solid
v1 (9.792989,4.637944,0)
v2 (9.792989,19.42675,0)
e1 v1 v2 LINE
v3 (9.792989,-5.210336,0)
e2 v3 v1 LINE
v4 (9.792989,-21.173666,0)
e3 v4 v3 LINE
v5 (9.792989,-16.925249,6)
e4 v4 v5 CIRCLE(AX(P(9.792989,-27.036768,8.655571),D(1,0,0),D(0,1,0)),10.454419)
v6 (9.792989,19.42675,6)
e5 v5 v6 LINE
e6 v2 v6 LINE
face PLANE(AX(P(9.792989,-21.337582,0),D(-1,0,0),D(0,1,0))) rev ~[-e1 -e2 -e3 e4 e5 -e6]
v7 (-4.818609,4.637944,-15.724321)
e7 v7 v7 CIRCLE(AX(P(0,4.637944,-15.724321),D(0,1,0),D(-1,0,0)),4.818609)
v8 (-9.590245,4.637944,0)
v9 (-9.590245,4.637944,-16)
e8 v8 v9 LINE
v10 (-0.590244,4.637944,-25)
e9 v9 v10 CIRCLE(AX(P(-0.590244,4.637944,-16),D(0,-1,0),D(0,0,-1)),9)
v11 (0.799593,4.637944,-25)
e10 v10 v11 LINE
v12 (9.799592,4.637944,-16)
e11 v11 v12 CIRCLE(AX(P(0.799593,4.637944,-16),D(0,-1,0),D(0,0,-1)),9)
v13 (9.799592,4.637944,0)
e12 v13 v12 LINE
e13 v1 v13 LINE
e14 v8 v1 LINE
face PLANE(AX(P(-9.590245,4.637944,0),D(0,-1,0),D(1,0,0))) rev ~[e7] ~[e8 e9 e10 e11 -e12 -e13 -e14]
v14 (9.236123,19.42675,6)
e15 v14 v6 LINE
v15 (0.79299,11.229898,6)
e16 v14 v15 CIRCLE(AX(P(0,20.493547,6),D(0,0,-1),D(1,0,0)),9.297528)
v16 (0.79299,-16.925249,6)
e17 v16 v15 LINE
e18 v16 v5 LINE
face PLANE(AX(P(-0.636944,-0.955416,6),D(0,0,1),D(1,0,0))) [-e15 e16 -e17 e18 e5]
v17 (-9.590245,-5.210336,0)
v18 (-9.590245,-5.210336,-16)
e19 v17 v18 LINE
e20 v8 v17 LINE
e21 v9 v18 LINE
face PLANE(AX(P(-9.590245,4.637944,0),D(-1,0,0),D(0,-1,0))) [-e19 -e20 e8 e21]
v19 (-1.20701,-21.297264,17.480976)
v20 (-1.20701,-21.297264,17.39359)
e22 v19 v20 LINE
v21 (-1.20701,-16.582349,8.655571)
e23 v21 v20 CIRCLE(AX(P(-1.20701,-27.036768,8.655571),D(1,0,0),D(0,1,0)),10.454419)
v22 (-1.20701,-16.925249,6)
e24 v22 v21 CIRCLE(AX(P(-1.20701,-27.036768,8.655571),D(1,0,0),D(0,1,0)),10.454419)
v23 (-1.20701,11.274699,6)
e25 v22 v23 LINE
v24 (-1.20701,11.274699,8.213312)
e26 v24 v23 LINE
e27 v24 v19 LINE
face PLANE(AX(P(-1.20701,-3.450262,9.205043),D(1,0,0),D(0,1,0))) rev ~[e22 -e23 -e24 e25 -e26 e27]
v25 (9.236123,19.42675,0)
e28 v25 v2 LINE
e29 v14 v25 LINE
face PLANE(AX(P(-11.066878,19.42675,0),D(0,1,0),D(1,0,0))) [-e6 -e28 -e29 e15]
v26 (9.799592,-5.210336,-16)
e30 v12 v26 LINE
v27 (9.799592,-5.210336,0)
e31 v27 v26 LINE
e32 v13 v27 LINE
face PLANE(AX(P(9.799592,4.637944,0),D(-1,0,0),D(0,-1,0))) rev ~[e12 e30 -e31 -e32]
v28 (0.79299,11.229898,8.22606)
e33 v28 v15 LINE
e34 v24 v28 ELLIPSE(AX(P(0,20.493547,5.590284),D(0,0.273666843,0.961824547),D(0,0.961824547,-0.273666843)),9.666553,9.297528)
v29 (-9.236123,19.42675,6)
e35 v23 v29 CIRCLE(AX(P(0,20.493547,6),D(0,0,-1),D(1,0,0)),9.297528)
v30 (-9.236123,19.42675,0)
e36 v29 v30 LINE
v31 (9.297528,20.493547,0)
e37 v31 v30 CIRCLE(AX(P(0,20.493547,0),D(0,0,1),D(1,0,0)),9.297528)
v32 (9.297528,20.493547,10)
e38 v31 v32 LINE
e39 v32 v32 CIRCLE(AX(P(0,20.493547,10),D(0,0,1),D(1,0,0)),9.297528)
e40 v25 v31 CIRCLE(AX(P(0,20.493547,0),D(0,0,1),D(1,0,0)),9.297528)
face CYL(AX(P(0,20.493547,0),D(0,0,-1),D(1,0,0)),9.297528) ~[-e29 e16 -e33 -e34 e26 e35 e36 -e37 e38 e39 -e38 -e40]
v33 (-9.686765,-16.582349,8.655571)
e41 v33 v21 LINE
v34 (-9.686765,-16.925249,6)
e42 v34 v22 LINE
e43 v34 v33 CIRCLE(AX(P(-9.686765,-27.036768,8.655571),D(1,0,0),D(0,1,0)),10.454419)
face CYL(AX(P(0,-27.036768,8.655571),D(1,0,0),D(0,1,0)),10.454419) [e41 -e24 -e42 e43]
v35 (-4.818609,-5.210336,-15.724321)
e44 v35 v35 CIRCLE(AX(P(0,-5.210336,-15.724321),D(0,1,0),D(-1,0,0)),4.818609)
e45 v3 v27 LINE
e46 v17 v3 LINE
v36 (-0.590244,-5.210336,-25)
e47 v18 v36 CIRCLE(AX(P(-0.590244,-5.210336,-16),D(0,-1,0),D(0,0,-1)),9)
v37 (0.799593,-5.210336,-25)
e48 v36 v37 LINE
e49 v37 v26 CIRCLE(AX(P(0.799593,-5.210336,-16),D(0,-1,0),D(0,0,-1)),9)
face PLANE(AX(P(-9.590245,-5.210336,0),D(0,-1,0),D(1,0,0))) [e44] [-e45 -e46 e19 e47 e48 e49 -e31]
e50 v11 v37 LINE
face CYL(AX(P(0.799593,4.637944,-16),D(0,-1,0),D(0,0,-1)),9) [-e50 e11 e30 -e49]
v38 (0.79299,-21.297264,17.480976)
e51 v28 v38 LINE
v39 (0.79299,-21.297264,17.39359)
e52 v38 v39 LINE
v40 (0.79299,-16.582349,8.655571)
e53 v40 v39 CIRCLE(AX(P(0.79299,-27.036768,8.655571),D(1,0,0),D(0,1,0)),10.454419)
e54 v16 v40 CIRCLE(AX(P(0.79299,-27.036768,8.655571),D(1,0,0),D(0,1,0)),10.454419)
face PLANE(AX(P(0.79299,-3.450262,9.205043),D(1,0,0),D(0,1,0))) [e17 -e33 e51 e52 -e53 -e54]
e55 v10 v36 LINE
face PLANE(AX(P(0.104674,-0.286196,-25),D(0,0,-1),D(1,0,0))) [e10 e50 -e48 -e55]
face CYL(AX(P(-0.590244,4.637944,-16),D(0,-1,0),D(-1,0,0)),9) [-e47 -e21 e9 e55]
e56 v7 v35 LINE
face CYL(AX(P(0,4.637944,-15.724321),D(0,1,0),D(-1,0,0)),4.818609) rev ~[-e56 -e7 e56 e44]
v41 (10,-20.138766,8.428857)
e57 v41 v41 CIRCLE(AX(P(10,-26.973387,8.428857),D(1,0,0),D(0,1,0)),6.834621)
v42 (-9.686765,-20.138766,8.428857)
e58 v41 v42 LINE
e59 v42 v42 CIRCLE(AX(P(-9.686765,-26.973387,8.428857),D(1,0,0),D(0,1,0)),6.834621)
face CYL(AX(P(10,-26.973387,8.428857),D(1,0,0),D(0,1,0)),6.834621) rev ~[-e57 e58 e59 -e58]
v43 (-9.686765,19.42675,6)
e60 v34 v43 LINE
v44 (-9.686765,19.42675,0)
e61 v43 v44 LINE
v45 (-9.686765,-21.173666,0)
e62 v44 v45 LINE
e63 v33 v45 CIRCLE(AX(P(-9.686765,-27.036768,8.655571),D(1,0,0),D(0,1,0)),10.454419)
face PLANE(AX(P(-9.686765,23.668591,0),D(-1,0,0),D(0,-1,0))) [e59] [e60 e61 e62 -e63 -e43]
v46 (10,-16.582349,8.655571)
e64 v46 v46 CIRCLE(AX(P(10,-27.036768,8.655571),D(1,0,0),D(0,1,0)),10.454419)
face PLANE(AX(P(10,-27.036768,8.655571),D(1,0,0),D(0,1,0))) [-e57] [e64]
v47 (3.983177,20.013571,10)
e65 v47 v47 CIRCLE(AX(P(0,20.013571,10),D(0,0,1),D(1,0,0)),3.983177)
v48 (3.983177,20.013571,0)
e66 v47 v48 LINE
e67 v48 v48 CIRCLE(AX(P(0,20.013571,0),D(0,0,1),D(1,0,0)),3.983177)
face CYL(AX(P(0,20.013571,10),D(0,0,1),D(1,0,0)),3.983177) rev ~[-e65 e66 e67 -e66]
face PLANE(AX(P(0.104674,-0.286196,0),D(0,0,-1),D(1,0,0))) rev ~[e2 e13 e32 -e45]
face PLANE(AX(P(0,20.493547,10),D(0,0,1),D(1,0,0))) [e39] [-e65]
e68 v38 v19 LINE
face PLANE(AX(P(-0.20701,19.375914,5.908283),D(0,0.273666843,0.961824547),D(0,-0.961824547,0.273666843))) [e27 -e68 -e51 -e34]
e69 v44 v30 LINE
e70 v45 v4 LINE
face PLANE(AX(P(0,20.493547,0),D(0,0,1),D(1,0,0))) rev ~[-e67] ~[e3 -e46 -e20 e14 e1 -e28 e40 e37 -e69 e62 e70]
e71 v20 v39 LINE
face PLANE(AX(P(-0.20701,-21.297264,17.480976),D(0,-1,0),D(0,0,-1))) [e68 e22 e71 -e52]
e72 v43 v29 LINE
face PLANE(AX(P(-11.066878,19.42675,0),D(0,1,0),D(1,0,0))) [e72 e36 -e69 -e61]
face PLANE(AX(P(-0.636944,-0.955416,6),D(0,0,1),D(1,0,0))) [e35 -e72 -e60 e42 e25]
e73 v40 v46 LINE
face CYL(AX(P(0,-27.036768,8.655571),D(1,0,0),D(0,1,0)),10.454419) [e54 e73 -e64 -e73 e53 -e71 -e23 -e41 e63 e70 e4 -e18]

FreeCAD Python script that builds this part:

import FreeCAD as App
import Part
import Sketcher
from FreeCAD import Vector


def edges_at(feature, points):
    """Names of the edges that pass closest to the given points."""
    edges = feature.Shape.Edges
    near = lambda p: min(range(len(edges)), key=lambda i: edges[i].distToShape(Part.Vertex(*p))[0])
    return sorted({f"Edge{near(p) + 1}" for p in points})


def add_polygon(sketch, points):
    """Adds a closed chain of lines whose ends are joined by coincident constraints."""
    first, n = sketch.GeometryCount, len(points)
    for a, b in zip(points, points[1:] + points[:1]):
        sketch.addGeometry(Part.LineSegment(App.Vector(*a, 0), App.Vector(*b, 0)), False)
    for i in range(n):
        sketch.addConstraint(Sketcher.Constraint("Coincident", first + i, 2, first + (i + 1) % n, 1))

doc = App.newDocument("Part")
body = doc.addObject("PartDesign::Body", "Body")

# Sketch on XY plane
sketch1 = doc.addObject("Sketcher::SketchObject", "Sketch")
body.addObject(sketch1)
sketch1.AttachmentSupport = (doc.XY_Plane, [""])
sketch1.MapMode = "FlatFace"
add_polygon(sketch1, [(-11, 19), (-11, -21), (10, -21), (10, 19)])  # lines 0-3
sketch1.addConstraint(Sketcher.Constraint("Vertical", 0))
sketch1.addConstraint(Sketcher.Constraint("Horizontal", 1))
sketch1.addConstraint(Sketcher.Constraint("Vertical", 2))
sketch1.addConstraint(Sketcher.Constraint("Horizontal", 3))
sketch1.addConstraint(Sketcher.Constraint("DistanceY", 0, 2, 0, 1, 40.764332))
sketch1.addConstraint(Sketcher.Constraint("DistanceX", 1, 1, 1, 2, 20.859867))
sketch1.addConstraint(Sketcher.Constraint("DistanceX", -1, 1, 1, 2, 9.792989))
sketch1.addConstraint(Sketcher.Constraint("DistanceY", -1, 1, 2, 2, 19.42675))
pad1 = doc.addObject("PartDesign::Pad", "Pad")
body.addObject(pad1)
pad1.Profile = sketch1
pad1.Length = 6

# Sketch on YZ plane
sketch2 = doc.addObject("Sketcher::SketchObject", "Sketch001")
body.addObject(sketch2)
sketch2.AttachmentSupport = (doc.YZ_Plane, [""])
sketch2.MapMode = "FlatFace"
sketch2.AttachmentOffset = App.Placement(Vector(0, 0, -0.20701), App.Rotation())
add_polygon(sketch2, [(-21, 17), (-21, 6), (19, 6)])  # lines 0-2
sketch2.addConstraint(Sketcher.Constraint("Vertical", 0))
sketch2.addConstraint(Sketcher.Constraint("Horizontal", 1))
sketch2.addConstraint(Sketcher.Constraint("DistanceX", 1, 1, 1, 2, 40.673178))
sketch2.addConstraint(Sketcher.Constraint("DistanceY", 0, 2, 0, 1, 11.572693))
sketch2.addConstraint(Sketcher.Constraint("DistanceX", 0, 2, -1, 1, 21.297264))
sketch2.addConstraint(Sketcher.Constraint("DistanceY", -1, 1, 0, 2, 5.908283))
pad2 = doc.addObject("PartDesign::Pad", "Pad001")
body.addObject(pad2)
pad2.Profile = sketch2
pad2.Length = 2
pad2.Midplane = True

# Sketch on YZ plane
sketch3 = doc.addObject("Sketcher::SketchObject", "Sketch002")
body.addObject(sketch3)
sketch3.AttachmentSupport = (doc.YZ_Plane, [""])
sketch3.MapMode = "FlatFace"
sketch3.addGeometry(Part.Circle(Vector(-27, 9, 0), Vector(0, 0, 1), 10), False)
sketch3.addConstraint(Sketcher.Constraint("Diameter", 0, 20.908838))
sketch3.addConstraint(Sketcher.Constraint("DistanceY", -1, 1, 0, 3, 8.655571))
sketch3.addConstraint(Sketcher.Constraint("DistanceX", 0, 3, -1, 1, 27.036768))
pad3 = doc.addObject("PartDesign::Pad", "Pad002")
body.addObject(pad3)
pad3.Profile = sketch3
pad3.Length = 20
pad3.Midplane = True

# Sketch on YZ plane
sketch4 = doc.addObject("Sketcher::SketchObject", "Sketch003")
body.addObject(sketch4)
sketch4.AttachmentSupport = (doc.YZ_Plane, [""])
sketch4.MapMode = "FlatFace"
sketch4.AttachmentOffset = App.Placement(Vector(0, 0, 10), App.Rotation())
sketch4.addGeometry(Part.Circle(Vector(-27, 8, 0), Vector(0, 0, 1), 7), False)
sketch4.addConstraint(Sketcher.Constraint("Diameter", 0, 13.669242))
sketch4.addConstraint(Sketcher.Constraint("DistanceX", 0, 3, -1, 1, 26.973387))
sketch4.addConstraint(Sketcher.Constraint("DistanceY", -1, 1, 0, 3, 8.428857))
pocket1 = doc.addObject("PartDesign::Pocket", "Pocket")
body.addObject(pocket1)
pocket1.Profile = sketch4
pocket1.Type = "ThroughAll"

# Sketch on XY plane
sketch5 = doc.addObject("Sketcher::SketchObject", "Sketch004")
body.addObject(sketch5)
sketch5.AttachmentSupport = (doc.XY_Plane, [""])
sketch5.MapMode = "FlatFace"
add_polygon(sketch5, [(-18, -41), (-18, 24), (-10, 24), (-10, -41)])  # lines 0-3
sketch5.addConstraint(Sketcher.Constraint("Vertical", 0))
sketch5.addConstraint(Sketcher.Constraint("Horizontal", 1))
sketch5.addConstraint(Sketcher.Constraint("Vertical", 2))
sketch5.addConstraint(Sketcher.Constraint("Horizontal", 3))
sketch5.addConstraint(Sketcher.Constraint("DistanceX", 1, 1, 1, 2, 8.397711))
sketch5.addConstraint(Sketcher.Constraint("DistanceY", 0, 1, 0, 2, 64.60706))
sketch5.addConstraint(Sketcher.Constraint("DistanceY", -1, 1, 0, 2, 23.668591))
sketch5.addConstraint(Sketcher.Constraint("DistanceX", 0, 2, -1, 1, 18.084475))
pocket2 = doc.addObject("PartDesign::Pocket", "Pocket001")
body.addObject(pocket2)
pocket2.Profile = sketch5
pocket2.Type = "ThroughAll"
pocket2.Midplane = True

# Sketch on XY plane
sketch6 = doc.addObject("Sketcher::SketchObject", "Sketch005")
body.addObject(sketch6)
sketch6.AttachmentSupport = (doc.XY_Plane, [""])
sketch6.MapMode = "FlatFace"
sketch6.addGeometry(Part.Circle(Vector(0, 20, 0), Vector(0, 0, 1), 9), False)
sketch6.addConstraint(Sketcher.Constraint("PointOnObject", 0, 3, -2))
sketch6.addConstraint(Sketcher.Constraint("Diameter", 0, 18.595056))
sketch6.addConstraint(Sketcher.Constraint("DistanceY", -1, 1, 0, 3, 20.493547))
pad4 = doc.addObject("PartDesign::Pad", "Pad003")
body.addObject(pad4)
pad4.Profile = sketch6
pad4.Length = 10

# Sketch on XY plane
sketch7 = doc.addObject("Sketcher::SketchObject", "Sketch006")
body.addObject(sketch7)
sketch7.AttachmentSupport = (doc.XY_Plane, [""])
sketch7.MapMode = "FlatFace"
sketch7.AttachmentOffset = App.Placement(Vector(0, 0, 10), App.Rotation())
sketch7.addGeometry(Part.Circle(Vector(0, 20, 0), Vector(0, 0, 1), 4), False)
sketch7.addConstraint(Sketcher.Constraint("PointOnObject", 0, 3, -2))
sketch7.addConstraint(Sketcher.Constraint("Diameter", 0, 7.966354))
sketch7.addConstraint(Sketcher.Constraint("DistanceY", -1, 1, 0, 3, 20.013571))
pocket3 = doc.addObject("PartDesign::Pocket", "Pocket002")
body.addObject(pocket3)
pocket3.Profile = sketch7
pocket3.Type = "ThroughAll"

# Sketch on XY plane
sketch8 = doc.addObject("Sketcher::SketchObject", "Sketch007")
body.addObject(sketch8)
sketch8.AttachmentSupport = (doc.XY_Plane, [""])
sketch8.MapMode = "FlatFace"
add_polygon(sketch8, [(-10, -5), (-10, 5), (10, 5), (10, -5)])  # lines 0-3
sketch8.addConstraint(Sketcher.Constraint("Vertical", 0))
sketch8.addConstraint(Sketcher.Constraint("Horizontal", 1))
sketch8.addConstraint(Sketcher.Constraint("Vertical", 2))
sketch8.addConstraint(Sketcher.Constraint("Horizontal", 3))
sketch8.addConstraint(Sketcher.Constraint("DistanceY", 0, 1, 0, 2, 9.84828))
sketch8.addConstraint(Sketcher.Constraint("DistanceX", 1, 1, 1, 2, 19.389837))
sketch8.addConstraint(Sketcher.Constraint("DistanceX", 0, 2, -1, 1, 9.590245))
sketch8.addConstraint(Sketcher.Constraint("DistanceY", -1, 1, 0, 2, 4.637944))
pad5 = doc.addObject("PartDesign::Pad", "Pad004")
body.addObject(pad5)
pad5.Profile = sketch8
pad5.Length = 25
pad5.Reversed = True
doc.recompute()

fillet = doc.addObject("PartDesign::Fillet", "Fillet")
body.addObject(fillet)
fillet.Base = (pad5, edges_at(pad5, [(-9.59, -0.286, -25), (9.8, -0.286, -25)]))
fillet.Radius = 9

# Sketch on XZ plane
sketch9 = doc.addObject("Sketcher::SketchObject", "Sketch008")
body.addObject(sketch9)
sketch9.AttachmentSupport = (doc.XZ_Plane, [""])
sketch9.MapMode = "FlatFace"
sketch9.AttachmentOffset = App.Placement(Vector(0, 0, -4.637944), App.Rotation())
sketch9.addGeometry(Part.Circle(Vector(0, -15.7, 0), Vector(0, 0, 1), 4.8), False)
sketch9.addConstraint(Sketcher.Constraint("PointOnObject", 0, 3, -2))
sketch9.addConstraint(Sketcher.Constraint("Diameter", 0, 9.637218))
sketch9.addConstraint(Sketcher.Constraint("DistanceY", 0, 3, -1, 1, 15.724321))
pocket4 = doc.addObject("PartDesign::Pocket", "Pocket003")
body.addObject(pocket4)
pocket4.Profile = sketch9
pocket4.Length = 15
pocket4.Reversed = True

doc.recompute()
